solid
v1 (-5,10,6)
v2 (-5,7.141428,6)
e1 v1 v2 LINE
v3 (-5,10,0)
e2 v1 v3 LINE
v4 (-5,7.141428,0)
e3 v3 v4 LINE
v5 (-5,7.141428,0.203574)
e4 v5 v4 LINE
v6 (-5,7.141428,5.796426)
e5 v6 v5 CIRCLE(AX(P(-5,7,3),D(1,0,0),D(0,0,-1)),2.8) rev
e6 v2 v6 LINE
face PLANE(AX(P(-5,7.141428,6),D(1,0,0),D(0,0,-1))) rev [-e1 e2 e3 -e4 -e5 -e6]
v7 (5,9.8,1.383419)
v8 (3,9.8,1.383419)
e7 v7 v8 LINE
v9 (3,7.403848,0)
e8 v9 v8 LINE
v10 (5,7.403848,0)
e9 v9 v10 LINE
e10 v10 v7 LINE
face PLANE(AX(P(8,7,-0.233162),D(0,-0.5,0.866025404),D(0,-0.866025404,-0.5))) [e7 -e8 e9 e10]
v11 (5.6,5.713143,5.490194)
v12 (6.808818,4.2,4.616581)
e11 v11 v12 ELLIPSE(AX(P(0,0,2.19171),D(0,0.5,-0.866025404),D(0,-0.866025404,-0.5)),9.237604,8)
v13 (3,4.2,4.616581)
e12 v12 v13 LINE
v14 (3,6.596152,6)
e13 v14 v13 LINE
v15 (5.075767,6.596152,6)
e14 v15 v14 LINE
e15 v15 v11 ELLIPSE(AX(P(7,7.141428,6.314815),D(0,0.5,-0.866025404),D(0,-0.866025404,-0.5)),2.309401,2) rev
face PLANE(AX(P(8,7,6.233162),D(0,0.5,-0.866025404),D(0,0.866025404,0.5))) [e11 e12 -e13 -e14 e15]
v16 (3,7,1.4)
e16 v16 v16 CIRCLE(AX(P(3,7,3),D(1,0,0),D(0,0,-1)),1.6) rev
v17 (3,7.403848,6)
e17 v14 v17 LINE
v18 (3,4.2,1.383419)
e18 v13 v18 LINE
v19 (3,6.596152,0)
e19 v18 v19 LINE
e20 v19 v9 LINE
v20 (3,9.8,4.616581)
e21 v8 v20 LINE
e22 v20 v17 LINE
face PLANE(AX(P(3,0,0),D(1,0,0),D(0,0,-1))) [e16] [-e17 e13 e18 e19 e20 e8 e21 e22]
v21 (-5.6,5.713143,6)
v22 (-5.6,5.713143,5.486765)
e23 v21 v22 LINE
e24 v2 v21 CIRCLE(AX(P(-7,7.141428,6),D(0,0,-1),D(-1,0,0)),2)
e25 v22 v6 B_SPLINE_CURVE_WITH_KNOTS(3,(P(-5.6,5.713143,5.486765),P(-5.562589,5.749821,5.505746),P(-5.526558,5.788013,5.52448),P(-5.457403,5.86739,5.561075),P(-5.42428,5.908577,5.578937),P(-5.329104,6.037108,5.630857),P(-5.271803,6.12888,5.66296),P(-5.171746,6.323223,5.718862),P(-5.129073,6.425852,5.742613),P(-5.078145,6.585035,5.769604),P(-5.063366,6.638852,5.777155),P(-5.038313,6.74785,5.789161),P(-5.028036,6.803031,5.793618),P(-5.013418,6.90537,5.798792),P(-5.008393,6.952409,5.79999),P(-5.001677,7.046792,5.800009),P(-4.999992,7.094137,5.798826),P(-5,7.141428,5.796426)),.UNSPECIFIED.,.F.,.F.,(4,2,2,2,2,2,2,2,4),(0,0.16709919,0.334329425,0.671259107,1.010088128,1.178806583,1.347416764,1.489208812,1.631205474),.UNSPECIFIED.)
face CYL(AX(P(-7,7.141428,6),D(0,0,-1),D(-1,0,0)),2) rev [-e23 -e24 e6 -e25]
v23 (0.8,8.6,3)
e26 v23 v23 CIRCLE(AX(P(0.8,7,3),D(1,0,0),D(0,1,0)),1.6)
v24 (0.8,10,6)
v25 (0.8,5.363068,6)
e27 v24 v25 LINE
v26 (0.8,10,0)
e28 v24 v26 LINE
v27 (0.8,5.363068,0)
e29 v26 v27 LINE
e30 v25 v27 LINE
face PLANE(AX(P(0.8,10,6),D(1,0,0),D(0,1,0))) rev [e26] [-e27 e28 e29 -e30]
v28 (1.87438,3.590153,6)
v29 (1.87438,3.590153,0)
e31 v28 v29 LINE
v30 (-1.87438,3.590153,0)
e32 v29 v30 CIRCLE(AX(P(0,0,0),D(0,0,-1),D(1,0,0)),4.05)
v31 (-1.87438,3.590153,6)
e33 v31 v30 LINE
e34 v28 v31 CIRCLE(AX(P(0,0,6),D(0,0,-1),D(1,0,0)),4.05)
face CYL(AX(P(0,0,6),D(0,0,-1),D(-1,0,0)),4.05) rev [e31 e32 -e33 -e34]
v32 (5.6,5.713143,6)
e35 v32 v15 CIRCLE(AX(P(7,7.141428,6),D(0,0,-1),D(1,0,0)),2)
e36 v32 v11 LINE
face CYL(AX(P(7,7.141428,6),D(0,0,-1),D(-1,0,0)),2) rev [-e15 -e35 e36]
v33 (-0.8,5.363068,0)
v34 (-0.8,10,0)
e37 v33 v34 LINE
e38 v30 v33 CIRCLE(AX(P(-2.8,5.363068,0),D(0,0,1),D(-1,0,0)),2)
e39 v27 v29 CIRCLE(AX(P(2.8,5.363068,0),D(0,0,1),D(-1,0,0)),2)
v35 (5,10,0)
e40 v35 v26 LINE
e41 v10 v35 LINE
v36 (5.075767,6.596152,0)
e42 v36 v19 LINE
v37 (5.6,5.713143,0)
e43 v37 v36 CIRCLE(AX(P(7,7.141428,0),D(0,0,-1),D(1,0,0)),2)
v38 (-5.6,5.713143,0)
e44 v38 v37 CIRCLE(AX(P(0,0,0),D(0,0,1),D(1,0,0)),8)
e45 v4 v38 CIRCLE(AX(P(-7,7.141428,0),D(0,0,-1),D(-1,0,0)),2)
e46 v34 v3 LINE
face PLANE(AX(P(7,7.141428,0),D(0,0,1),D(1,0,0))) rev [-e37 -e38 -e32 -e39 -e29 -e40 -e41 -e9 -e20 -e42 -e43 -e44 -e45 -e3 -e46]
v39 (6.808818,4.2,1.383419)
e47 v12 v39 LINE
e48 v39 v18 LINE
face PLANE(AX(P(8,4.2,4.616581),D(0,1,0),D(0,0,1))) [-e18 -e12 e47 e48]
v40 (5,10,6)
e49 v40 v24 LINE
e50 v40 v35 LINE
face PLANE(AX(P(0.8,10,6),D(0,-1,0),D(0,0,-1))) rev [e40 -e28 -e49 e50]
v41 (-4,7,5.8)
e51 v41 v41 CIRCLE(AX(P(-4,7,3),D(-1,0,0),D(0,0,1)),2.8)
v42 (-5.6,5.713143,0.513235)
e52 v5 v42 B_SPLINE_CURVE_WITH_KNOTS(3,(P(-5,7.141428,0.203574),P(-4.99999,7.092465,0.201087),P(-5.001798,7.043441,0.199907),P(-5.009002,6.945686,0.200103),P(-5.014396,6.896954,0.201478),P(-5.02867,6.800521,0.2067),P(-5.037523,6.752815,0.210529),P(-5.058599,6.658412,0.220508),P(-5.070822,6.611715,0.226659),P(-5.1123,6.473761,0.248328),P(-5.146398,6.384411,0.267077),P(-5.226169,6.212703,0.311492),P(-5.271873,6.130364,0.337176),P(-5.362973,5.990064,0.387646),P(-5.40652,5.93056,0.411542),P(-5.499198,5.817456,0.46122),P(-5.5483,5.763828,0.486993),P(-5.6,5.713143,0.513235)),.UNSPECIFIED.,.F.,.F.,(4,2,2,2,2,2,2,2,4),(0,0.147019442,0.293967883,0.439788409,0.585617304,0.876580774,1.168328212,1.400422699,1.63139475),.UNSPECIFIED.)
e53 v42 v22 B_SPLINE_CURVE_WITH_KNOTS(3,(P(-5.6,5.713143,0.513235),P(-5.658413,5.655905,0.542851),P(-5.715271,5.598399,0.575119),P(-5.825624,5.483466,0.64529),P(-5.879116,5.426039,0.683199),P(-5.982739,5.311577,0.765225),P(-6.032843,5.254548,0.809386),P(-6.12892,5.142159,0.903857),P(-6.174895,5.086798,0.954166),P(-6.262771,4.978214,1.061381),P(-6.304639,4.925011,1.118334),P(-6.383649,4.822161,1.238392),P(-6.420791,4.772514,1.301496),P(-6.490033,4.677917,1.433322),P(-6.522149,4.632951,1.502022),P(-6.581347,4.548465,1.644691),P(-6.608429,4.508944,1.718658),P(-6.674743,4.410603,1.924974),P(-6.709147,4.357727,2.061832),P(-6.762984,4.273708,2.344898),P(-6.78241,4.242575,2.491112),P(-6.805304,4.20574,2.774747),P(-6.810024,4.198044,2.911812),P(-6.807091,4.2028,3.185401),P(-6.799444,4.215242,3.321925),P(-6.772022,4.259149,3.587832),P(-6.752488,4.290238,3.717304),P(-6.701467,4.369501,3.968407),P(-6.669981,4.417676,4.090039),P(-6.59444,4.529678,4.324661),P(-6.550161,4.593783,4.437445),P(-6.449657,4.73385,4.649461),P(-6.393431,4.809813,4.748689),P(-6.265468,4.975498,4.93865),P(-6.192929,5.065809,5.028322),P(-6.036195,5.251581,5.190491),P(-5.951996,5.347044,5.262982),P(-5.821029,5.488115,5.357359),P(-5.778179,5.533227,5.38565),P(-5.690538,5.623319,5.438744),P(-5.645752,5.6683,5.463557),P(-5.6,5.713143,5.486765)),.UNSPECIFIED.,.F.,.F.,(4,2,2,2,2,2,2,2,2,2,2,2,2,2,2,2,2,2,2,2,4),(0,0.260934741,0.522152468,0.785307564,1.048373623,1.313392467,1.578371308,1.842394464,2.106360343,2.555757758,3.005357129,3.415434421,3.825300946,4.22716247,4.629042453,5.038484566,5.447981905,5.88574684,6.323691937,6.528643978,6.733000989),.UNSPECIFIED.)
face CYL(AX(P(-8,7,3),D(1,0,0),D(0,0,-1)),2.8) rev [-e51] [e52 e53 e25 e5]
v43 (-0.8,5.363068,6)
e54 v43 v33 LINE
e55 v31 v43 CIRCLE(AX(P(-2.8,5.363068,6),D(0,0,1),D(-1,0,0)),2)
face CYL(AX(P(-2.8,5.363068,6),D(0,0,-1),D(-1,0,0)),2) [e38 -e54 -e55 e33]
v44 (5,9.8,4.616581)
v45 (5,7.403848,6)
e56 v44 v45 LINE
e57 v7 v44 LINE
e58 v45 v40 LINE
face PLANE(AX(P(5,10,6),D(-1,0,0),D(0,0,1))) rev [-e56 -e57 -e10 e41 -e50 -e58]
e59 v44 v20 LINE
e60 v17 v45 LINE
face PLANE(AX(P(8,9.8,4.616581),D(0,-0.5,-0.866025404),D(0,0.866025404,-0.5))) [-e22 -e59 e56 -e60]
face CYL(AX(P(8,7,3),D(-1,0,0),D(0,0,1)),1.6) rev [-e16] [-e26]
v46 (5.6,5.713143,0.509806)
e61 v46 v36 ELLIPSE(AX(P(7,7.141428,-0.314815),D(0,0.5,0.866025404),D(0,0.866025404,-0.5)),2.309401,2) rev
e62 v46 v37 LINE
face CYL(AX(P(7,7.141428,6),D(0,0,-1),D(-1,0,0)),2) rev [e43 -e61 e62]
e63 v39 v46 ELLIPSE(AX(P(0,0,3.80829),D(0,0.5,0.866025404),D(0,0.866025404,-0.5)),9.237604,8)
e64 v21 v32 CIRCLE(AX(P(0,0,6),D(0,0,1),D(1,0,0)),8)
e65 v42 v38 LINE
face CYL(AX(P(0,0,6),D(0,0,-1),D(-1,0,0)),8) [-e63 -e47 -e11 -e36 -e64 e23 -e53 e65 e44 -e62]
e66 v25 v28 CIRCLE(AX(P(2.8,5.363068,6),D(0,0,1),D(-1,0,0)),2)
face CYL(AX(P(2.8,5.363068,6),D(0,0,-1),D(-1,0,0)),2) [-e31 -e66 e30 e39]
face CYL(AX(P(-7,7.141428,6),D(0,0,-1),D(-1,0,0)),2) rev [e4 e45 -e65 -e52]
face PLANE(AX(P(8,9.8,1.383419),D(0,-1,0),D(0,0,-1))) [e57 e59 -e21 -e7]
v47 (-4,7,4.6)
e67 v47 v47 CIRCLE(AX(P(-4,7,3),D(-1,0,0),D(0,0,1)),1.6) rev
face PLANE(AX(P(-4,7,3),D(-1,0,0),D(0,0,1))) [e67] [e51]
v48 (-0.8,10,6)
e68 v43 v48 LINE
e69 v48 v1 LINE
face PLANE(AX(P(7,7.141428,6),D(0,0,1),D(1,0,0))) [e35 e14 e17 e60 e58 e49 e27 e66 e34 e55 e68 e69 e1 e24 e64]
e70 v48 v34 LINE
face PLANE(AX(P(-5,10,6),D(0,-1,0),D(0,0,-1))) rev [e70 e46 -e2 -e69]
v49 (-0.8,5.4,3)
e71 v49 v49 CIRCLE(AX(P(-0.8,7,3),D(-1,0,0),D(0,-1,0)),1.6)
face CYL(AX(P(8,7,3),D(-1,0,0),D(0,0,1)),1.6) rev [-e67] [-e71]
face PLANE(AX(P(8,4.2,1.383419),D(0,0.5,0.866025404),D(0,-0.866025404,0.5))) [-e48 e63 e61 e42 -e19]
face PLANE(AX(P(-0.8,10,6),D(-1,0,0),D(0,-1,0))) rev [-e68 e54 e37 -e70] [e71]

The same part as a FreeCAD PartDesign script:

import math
import FreeCAD as App
import Part
import Sketcher

V = App.Vector
Q = App.Units.Quantity

doc = App.newDocument("Part")
body = doc.addObject("PartDesign::Body", "Body")

# Sketch on XY plane
sketch1 = doc.addObject("Sketcher::SketchObject", "Sketch")
body.addObject(sketch1)
sketch1.AttachmentSupport = (doc.XY_Plane, [""])
sketch1.MapMode = "FlatFace"
sketch1.addGeometry([
    Part.LineSegment(V(-5, 10, 0), V(-5, 7.1, 0)),  # 0
    Part.ArcOfCircle(Part.Circle(V(-7, 7.1, 0), V(0, 0, 1), 2), math.radians(-46), math.radians(0)),  # 1
    Part.ArcOfCircle(Part.Circle(V(0, 0, 0), V(0, 0, 1), 8), math.radians(134), math.radians(406)),  # 2
    Part.ArcOfCircle(Part.Circle(V(7, 7.1, 0), V(0, 0, 1), 2), math.radians(-180), math.radians(-134)),  # 3
    Part.LineSegment(V(5, 7.1, 0), V(5, 10, 0)),  # 4
    Part.LineSegment(V(5, 10, 0), V(0.8, 10, 0)),  # 5
    Part.LineSegment(V(0.8, 10, 0), V(0.8, 5.4, 0)),  # 6
    Part.ArcOfCircle(Part.Circle(V(2.8, 5.4, 0), V(0, 0, 1), 2), math.radians(-180), math.radians(-118)),  # 7
    Part.ArcOfCircle(Part.Circle(V(0, 0, 0), V(0, 0, 1), 4), math.radians(118), math.radians(422)),  # 8
    Part.ArcOfCircle(Part.Circle(V(-2.8, 5.4, 0), V(0, 0, 1), 2), math.radians(-62), math.radians(0)),  # 9
    Part.LineSegment(V(-0.8, 5.4, 0), V(-0.8, 10, 0)),  # 10
    Part.LineSegment(V(-0.8, 10, 0), V(-5, 10, 0)),  # 11
], False)
sketch1.addConstraint([
    Sketcher.Constraint("Tangent", 0, 2, 1, 2),
    Sketcher.Constraint("Tangent", 1, 1, 2, 1),
    Sketcher.Constraint("Tangent", 2, 2, 3, 2),
    Sketcher.Constraint("Tangent", 3, 1, 4, 1),
    Sketcher.Constraint("Coincident", 4, 2, 5, 1),
    Sketcher.Constraint("Coincident", 5, 2, 6, 1),
    Sketcher.Constraint("Tangent", 6, 2, 7, 1),
    Sketcher.Constraint("Tangent", 7, 2, 8, 2),
    Sketcher.Constraint("Tangent", 8, 1, 9, 1),
    Sketcher.Constraint("Tangent", 9, 2, 10, 1),
    Sketcher.Constraint("Coincident", 10, 2, 11, 1),
    Sketcher.Constraint("Coincident", 11, 2, 0, 1),
    Sketcher.Constraint("Vertical", 0),
    Sketcher.Constraint("Vertical", 4),
    Sketcher.Constraint("Horizontal", 5),
    Sketcher.Constraint("Vertical", 6),
    Sketcher.Constraint("Vertical", 10),
    Sketcher.Constraint("Horizontal", 11),
    Sketcher.Constraint("Coincident", 2, 3, -1, 1),
    Sketcher.Constraint("Coincident", 8, 3, -1, 1),
    Sketcher.Constraint("Equal", 1, 3),
    Sketcher.Constraint("Equal", 3, 7),
    Sketcher.Constraint("Equal", 7, 9),
    Sketcher.Constraint("Symmetric", 5, 2, 10, 2, -2),
    Sketcher.Constraint("Horizontal", 1, 3, 3, 3),
    Sketcher.Constraint("Radius", 1, 2.0),
    Sketcher.Constraint("Radius", 2, 8.0),
    Sketcher.Constraint("Radius", 8, 4.05),
    Sketcher.Constraint("DistanceX", 5, 2, 5, 1, 4.2),
    Sketcher.Constraint("DistanceX", 1, 3, -1, 1, 7.0),
    Sketcher.Constraint("DistanceY", -1, 1, 4, 2, 10.0),
])
pad1 = doc.addObject("PartDesign::Pad", "Pad")
body.addObject(pad1)
pad1.Profile = sketch1
pad1.Length = 6

# Sketch on YZ plane
sketch2 = doc.addObject("Sketcher::SketchObject", "Sketch001")
body.addObject(sketch2)
sketch2.AttachmentSupport = (doc.YZ_Plane, [""])
sketch2.MapMode = "FlatFace"
sketch2.AttachmentOffset = App.Placement(V(0, 0, -5), App.Rotation())
sketch2.addGeometry(Part.Circle(V(7, 3, 0), V(0, 0, 1), 1.6), False)
sketch2.addConstraint([
    Sketcher.Constraint("Diameter", 0, 3.2),
    Sketcher.Constraint("DistanceX", -1, 1, 0, 3, 7.0),
    Sketcher.Constraint("DistanceY", -1, 1, 0, 3, 3.0),
])
pocket1 = doc.addObject("PartDesign::Pocket", "Pocket")
body.addObject(pocket1)
pocket1.Profile = sketch2
pocket1.Type = "ThroughAll"
pocket1.Midplane = True

# Sketch on YZ plane
sketch3 = doc.addObject("Sketcher::SketchObject", "Sketch002")
body.addObject(sketch3)
sketch3.AttachmentSupport = (doc.YZ_Plane, [""])
sketch3.MapMode = "FlatFace"
sketch3.AttachmentOffset = App.Placement(V(0, 0, -4), App.Rotation())
sketch3.addGeometry(Part.Circle(V(7, 3, 0), V(0, 0, 1), 2.8), False)
sketch3.addConstraint([
    Sketcher.Constraint("Diameter", 0, 5.6),
    Sketcher.Constraint("DistanceX", -1, 1, 0, 3, 7.0),
    Sketcher.Constraint("DistanceY", -1, 1, 0, 3, 3.0),
])
pocket2 = doc.addObject("PartDesign::Pocket", "Pocket001")
body.addObject(pocket2)
pocket2.Profile = sketch3
pocket2.Type = "ThroughAll"

# Sketch on YZ plane
sketch4 = doc.addObject("Sketcher::SketchObject", "Sketch003")
body.addObject(sketch4)
sketch4.AttachmentSupport = (doc.YZ_Plane, [""])
sketch4.MapMode = "FlatFace"
sketch4.AttachmentOffset = App.Placement(V(0, 0, 3), App.Rotation())
sketch4.addGeometry([
    Part.LineSegment(V(7, -0.2, 0), V(9.8, 1.4, 0)),  # 0
    Part.LineSegment(V(9.8, 1.4, 0), V(9.8, 4.6, 0)),  # 1
    Part.LineSegment(V(9.8, 4.6, 0), V(7, 6.2, 0)),  # 2
    Part.LineSegment(V(7, 6.2, 0), V(4.2, 4.6, 0)),  # 3
    Part.LineSegment(V(4.2, 4.6, 0), V(4.2, 1.4, 0)),  # 4
    Part.LineSegment(V(4.2, 1.4, 0), V(7, -0.2, 0)),  # 5
], False)
sketch4.addConstraint([
    Sketcher.Constraint("Coincident", 0, 2, 1, 1),
    Sketcher.Constraint("Coincident", 1, 2, 2, 1),
    Sketcher.Constraint("Coincident", 2, 2, 3, 1),
    Sketcher.Constraint("Coincident", 3, 2, 4, 1),
    Sketcher.Constraint("Coincident", 4, 2, 5, 1),
    Sketcher.Constraint("Coincident", 5, 2, 0, 1),
    Sketcher.Constraint("Vertical", 1),
    Sketcher.Constraint("Vertical", 4),
    Sketcher.Constraint("Parallel", 0, 3),
    Sketcher.Constraint("Parallel", 2, 5),
    Sketcher.Constraint("Horizontal", 1, 2, 3, 2),
    Sketcher.Constraint("Horizontal", 0, 2, 4, 2),
    Sketcher.Constraint("Vertical", 2, 2, 5, 2),
    Sketcher.Constraint("Angle", 0, Q("30 deg")),
    Sketcher.Constraint("DistanceX", -1, 1, 2, 2, 7.0),
    Sketcher.Constraint("DistanceX", -1, 1, 0, 2, 9.8),
    Sketcher.Constraint("DistanceY", 1, 1, 1, 2, 3.233162),
    Sketcher.Constraint("DistanceY", -1, 1, 0, 2, 1.383419),
])
pocket3 = doc.addObject("PartDesign::Pocket", "Pocket002")
body.addObject(pocket3)
pocket3.Profile = sketch4
pocket3.Type = "ThroughAll"
pocket3.Reversed = True

doc.recompute()
